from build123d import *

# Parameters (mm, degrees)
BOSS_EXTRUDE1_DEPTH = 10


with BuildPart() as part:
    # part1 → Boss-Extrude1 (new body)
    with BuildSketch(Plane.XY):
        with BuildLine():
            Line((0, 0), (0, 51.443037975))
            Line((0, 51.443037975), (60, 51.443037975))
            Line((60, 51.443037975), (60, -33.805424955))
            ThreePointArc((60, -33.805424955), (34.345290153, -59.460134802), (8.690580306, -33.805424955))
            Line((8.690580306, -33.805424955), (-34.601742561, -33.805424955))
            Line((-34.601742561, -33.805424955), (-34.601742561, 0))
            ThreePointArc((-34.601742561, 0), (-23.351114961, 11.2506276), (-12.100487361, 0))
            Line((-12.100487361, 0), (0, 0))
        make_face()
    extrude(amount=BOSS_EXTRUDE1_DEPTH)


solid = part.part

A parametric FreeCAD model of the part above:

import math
import FreeCAD as App
import Part
import Sketcher
Q = App.Units.Quantity

doc = App.newDocument("Part")
body = doc.addObject("PartDesign::Body", "Body")

sketch1 = body.newObject("Sketcher::SketchObject", "Sketch")
sketch1.AttachmentSupport = (doc.getObject("XY_Plane"), [""])
sketch1.MapMode = "FlatFace"
sketch1.addGeometry(Part.LineSegment(App.Vector(0, 51, 0), App.Vector(0, 0, 0)), False)
sketch1.addGeometry(Part.LineSegment(App.Vector(0, 0, 0), App.Vector(-12, 0, 0)), False)
sketch1.addGeometry(Part.ArcOfCircle(Part.Circle(App.Vector(-23, 0, 0), App.Vector(0, 0, 1), 11), math.radians(0), math.radians(180)), False)
sketch1.addGeometry(Part.LineSegment(App.Vector(-35, 0, 0), App.Vector(-35, -34, 0)), False)
sketch1.addGeometry(Part.LineSegment(App.Vector(-35, -34, 0), App.Vector(9, -34, 0)), False)
sketch1.addGeometry(Part.ArcOfCircle(Part.Circle(App.Vector(34, -34, 0), App.Vector(0, 0, 1), 26), math.radians(180), math.radians(360)), False)
sketch1.addGeometry(Part.LineSegment(App.Vector(60, -34, 0), App.Vector(60, 51, 0)), False)
sketch1.addGeometry(Part.LineSegment(App.Vector(60, 51, 0), App.Vector(0, 51, 0)), False)
sketch1.addConstraint(Sketcher.Constraint("Coincident", 0, 2, 1, 1))
sketch1.addConstraint(Sketcher.Constraint("Coincident", 1, 2, 2, 1))
sketch1.addConstraint(Sketcher.Constraint("Tangent", 2, 2, 3, 1))
sketch1.addConstraint(Sketcher.Constraint("Coincident", 3, 2, 4, 1))
sketch1.addConstraint(Sketcher.Constraint("Coincident", 4, 2, 5, 1))
sketch1.addConstraint(Sketcher.Constraint("Tangent", 5, 2, 6, 1))
sketch1.addConstraint(Sketcher.Constraint("Coincident", 6, 2, 7, 1))
sketch1.addConstraint(Sketcher.Constraint("Coincident", 7, 2, 0, 1))
sketch1.addConstraint(Sketcher.Constraint("Vertical", 0))
sketch1.addConstraint(Sketcher.Constraint("Horizontal", 1))
sketch1.addConstraint(Sketcher.Constraint("Vertical", 3))
sketch1.addConstraint(Sketcher.Constraint("Horizontal", 4))
sketch1.addConstraint(Sketcher.Constraint("Vertical", 6))
sketch1.addConstraint(Sketcher.Constraint("Horizontal", 7))
sketch1.addConstraint(Sketcher.Constraint("Coincident", 0, 2, -1, 1))
sketch1.addConstraint(Sketcher.Constraint("PointOnObject", 2, 3, -1))
sketch1.addConstraint(Sketcher.Constraint("Horizontal", 5, 3, 3, 2))
sketch1.addConstraint(Sketcher.Constraint("DistanceX", 7, 2, 7, 1, Q("60 mm")))
sketch1.addConstraint(Sketcher.Constraint("Radius", 5, Q("25.65471 mm")))
sketch1.addConstraint(Sketcher.Constraint("Radius", 2, Q("11.250628 mm")))
sketch1.addConstraint(Sketcher.Constraint("DistanceX", 1, 2, 1, 1, Q("12.100487 mm")))
sketch1.addConstraint(Sketcher.Constraint("DistanceY", 0, 2, 0, 1, Q("51.443038 mm")))
sketch1.addConstraint(Sketcher.Constraint("DistanceY", 3, 2, 3, 1, Q("33.805425 mm")))
pad1 = body.newObject("PartDesign::Pad", "Pad")
pad1.Profile = sketch1
pad1.Length = 10

doc.recompute()
